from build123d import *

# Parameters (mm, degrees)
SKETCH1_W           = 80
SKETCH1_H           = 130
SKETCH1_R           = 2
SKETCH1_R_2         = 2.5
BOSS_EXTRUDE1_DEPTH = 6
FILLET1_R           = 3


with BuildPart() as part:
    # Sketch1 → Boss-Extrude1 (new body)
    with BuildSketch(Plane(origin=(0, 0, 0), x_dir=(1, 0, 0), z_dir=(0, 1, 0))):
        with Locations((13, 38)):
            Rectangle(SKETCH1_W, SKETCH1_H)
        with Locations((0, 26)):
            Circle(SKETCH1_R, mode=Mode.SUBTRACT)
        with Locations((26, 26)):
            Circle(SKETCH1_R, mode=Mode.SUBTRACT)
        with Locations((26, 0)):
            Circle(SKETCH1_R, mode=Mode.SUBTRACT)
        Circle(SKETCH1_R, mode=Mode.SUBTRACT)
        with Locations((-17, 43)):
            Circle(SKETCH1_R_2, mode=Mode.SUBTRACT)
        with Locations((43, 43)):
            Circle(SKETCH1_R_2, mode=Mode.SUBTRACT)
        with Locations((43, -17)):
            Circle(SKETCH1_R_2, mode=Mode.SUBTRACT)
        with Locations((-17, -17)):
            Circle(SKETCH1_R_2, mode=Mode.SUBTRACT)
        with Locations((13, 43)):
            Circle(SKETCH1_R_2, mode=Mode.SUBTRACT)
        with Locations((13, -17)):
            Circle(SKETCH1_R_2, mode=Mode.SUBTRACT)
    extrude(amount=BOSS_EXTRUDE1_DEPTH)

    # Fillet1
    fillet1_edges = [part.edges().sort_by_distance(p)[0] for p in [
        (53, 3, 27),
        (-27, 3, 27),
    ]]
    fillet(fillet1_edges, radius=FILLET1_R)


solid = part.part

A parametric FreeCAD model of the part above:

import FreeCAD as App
import Part
import Sketcher


def edges_at(feature, points):
    """Names of the edges that pass closest to the given points."""
    edges = feature.Shape.Edges
    near = lambda p: min(range(len(edges)), key=lambda i: edges[i].distToShape(Part.Vertex(*p))[0])
    return sorted({f"Edge{near(p) + 1}" for p in points})

doc = App.newDocument("Part")
params = doc.addObject("Spreadsheet::Sheet", "Params")
for row, (alias, value) in enumerate([
    ("sketch1_diameter", "5 mm"),
    ("sketch1_diameter2", "4 mm"),
    ("sketch1_width", "80 mm"),
    ("sketch1_height", "130 mm"),
    ("pad1_length", "6 mm"),
    ("fillet_radius", "3 mm"),
], start=1):
    params.set(f"A{row}", alias)
    params.set(f"B{row}", "=" + value)
    params.setAlias(f"B{row}", alias)

body = doc.addObject("PartDesign::Body", "Body")

sketch1 = body.newObject("Sketcher::SketchObject", "Sketch")
sketch1.AttachmentSupport = (doc.getObject("XZ_Plane"), [""])
sketch1.MapMode = "FlatFace"
sketch1.addGeometry(Part.LineSegment(App.Vector(-27, -103, 0), App.Vector(-27, 27, 0)), False)
sketch1.addGeometry(Part.LineSegment(App.Vector(-27, 27, 0), App.Vector(53, 27, 0)), False)
sketch1.addGeometry(Part.LineSegment(App.Vector(53, 27, 0), App.Vector(53, -103, 0)), False)
sketch1.addGeometry(Part.LineSegment(App.Vector(53, -103, 0), App.Vector(-27, -103, 0)), False)
sketch1.addGeometry(Part.Circle(App.Vector(-17, 17, 0), App.Vector(0, 0, 1), 2.5), False)
sketch1.addGeometry(Part.Circle(App.Vector(0, 0, 0), App.Vector(0, 0, 1), 2), False)
sketch1.addGeometry(Part.Circle(App.Vector(13, 17, 0), App.Vector(0, 0, 1), 2.5), False)
sketch1.addGeometry(Part.Circle(App.Vector(43, 17, 0), App.Vector(0, 0, 1), 2.5), False)
sketch1.addGeometry(Part.Circle(App.Vector(26, 0, 0), App.Vector(0, 0, 1), 2), False)
sketch1.addGeometry(Part.Circle(App.Vector(0, -26, 0), App.Vector(0, 0, 1), 2), False)
sketch1.addGeometry(Part.Circle(App.Vector(-17, -43, 0), App.Vector(0, 0, 1), 2.5), False)
sketch1.addGeometry(Part.Circle(App.Vector(26, -26, 0), App.Vector(0, 0, 1), 2), False)
sketch1.addGeometry(Part.Circle(App.Vector(13, -43, 0), App.Vector(0, 0, 1), 2.5), False)
sketch1.addGeometry(Part.Circle(App.Vector(43, -43, 0), App.Vector(0, 0, 1), 2.5), False)
sketch1.addConstraint(Sketcher.Constraint("Coincident", 0, 2, 1, 1))
sketch1.addConstraint(Sketcher.Constraint("Coincident", 1, 2, 2, 1))
sketch1.addConstraint(Sketcher.Constraint("Coincident", 2, 2, 3, 1))
sketch1.addConstraint(Sketcher.Constraint("Coincident", 3, 2, 0, 1))
sketch1.addConstraint(Sketcher.Constraint("Vertical", 0))
sketch1.addConstraint(Sketcher.Constraint("Horizontal", 1))
sketch1.addConstraint(Sketcher.Constraint("Vertical", 2))
sketch1.addConstraint(Sketcher.Constraint("Horizontal", 3))
sketch1.addConstraint(Sketcher.Constraint("Coincident", 5, 3, -1, 1))
sketch1.addConstraint(Sketcher.Constraint("Equal", 4, 6))
sketch1.addConstraint(Sketcher.Constraint("Equal", 6, 7))
sketch1.addConstraint(Sketcher.Constraint("Equal", 5, 8))
sketch1.addConstraint(Sketcher.Constraint("Equal", 8, 9))
sketch1.addConstraint(Sketcher.Constraint("Equal", 7, 10))
sketch1.addConstraint(Sketcher.Constraint("Equal", 9, 11))
sketch1.addConstraint(Sketcher.Constraint("Equal", 10, 12))
sketch1.addConstraint(Sketcher.Constraint("Equal", 12, 13))
sketch1.addConstraint(Sketcher.Constraint("PointOnObject", 8, 3, -1))
sketch1.addConstraint(Sketcher.Constraint("PointOnObject", 9, 3, -2))
sketch1.addConstraint(Sketcher.Constraint("Horizontal", 4, 3, 6, 3))
sketch1.addConstraint(Sketcher.Constraint("Horizontal", 6, 3, 7, 3))
sketch1.addConstraint(Sketcher.Constraint("Horizontal", 9, 3, 11, 3))
sketch1.addConstraint(Sketcher.Constraint("Horizontal", 10, 3, 12, 3))
sketch1.addConstraint(Sketcher.Constraint("Horizontal", 12, 3, 13, 3))
sketch1.addConstraint(Sketcher.Constraint("Vertical", 4, 3, 10, 3))
sketch1.addConstraint(Sketcher.Constraint("Vertical", 8, 3, 11, 3))
sketch1.addConstraint(Sketcher.Constraint("Vertical", 6, 3, 12, 3))
sketch1.addConstraint(Sketcher.Constraint("Vertical", 7, 3, 13, 3))
sketch1.addConstraint(Sketcher.Constraint("Diameter", 4, 5.0))
sketch1.addConstraint(Sketcher.Constraint("Diameter", 5, 4.0))
sketch1.addConstraint(Sketcher.Constraint("DistanceX", 1, 1, 1, 2, 80.0))
sketch1.addConstraint(Sketcher.Constraint("DistanceY", 0, 1, 0, 2, 130.0))
sketch1.addConstraint(Sketcher.Constraint("DistanceX", 4, 3, -1, 1, 17.0))
sketch1.addConstraint(Sketcher.Constraint("DistanceY", -1, 1, 4, 3, 17.0))
sketch1.addConstraint(Sketcher.Constraint("DistanceX", -1, 1, 6, 3, 13.0))
sketch1.addConstraint(Sketcher.Constraint("DistanceX", -1, 1, 7, 3, 43.0))
sketch1.addConstraint(Sketcher.Constraint("DistanceX", -1, 1, 8, 3, 26.0))
sketch1.addConstraint(Sketcher.Constraint("DistanceY", 9, 3, -1, 1, 26.0))
sketch1.addConstraint(Sketcher.Constraint("DistanceY", 10, 3, -1, 1, 43.0))
sketch1.addConstraint(Sketcher.Constraint("DistanceX", 0, 2, -1, 1, 27.0))
sketch1.addConstraint(Sketcher.Constraint("DistanceY", -1, 1, 0, 2, 27.0))
sketch1.setExpression("Constraints[28]", "Params.sketch1_diameter")
sketch1.setExpression("Constraints[29]", "Params.sketch1_diameter2")
sketch1.setExpression("Constraints[30]", "Params.sketch1_width")
sketch1.setExpression("Constraints[31]", "Params.sketch1_height")
pad1 = body.newObject("PartDesign::Pad", "Pad")
pad1.Profile = sketch1
pad1.setExpression("Length", "Params.pad1_length")
pad1.Reversed = True
doc.recompute()

fillet = body.newObject("PartDesign::Fillet", "Fillet")
fillet.Base = (pad1, edges_at(pad1, [(53, 3, 27), (-27, 3, 27)]))
fillet.setExpression("Radius", "Params.fillet_radius")

doc.recompute()
